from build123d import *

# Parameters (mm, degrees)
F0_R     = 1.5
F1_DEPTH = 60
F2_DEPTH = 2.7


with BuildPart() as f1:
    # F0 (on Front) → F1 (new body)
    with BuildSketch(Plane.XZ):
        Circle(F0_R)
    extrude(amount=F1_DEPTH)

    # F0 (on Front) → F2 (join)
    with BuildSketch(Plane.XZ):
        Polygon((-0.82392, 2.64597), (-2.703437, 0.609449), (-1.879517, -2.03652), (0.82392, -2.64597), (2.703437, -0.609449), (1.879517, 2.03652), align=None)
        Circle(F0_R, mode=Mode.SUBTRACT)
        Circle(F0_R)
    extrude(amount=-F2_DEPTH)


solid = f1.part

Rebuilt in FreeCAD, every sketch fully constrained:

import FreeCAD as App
import Part
import Sketcher


def add_polygon(sketch, points):
    """Adds a closed chain of lines whose ends are joined by coincident constraints."""
    first, n = sketch.GeometryCount, len(points)
    for a, b in zip(points, points[1:] + points[:1]):
        sketch.addGeometry(Part.LineSegment(App.Vector(*a, 0), App.Vector(*b, 0)), False)
    for i in range(n):
        sketch.addConstraint(Sketcher.Constraint("Coincident", first + i, 2, first + (i + 1) % n, 1))

doc = App.newDocument("Part")
params = doc.addObject("Spreadsheet::Sheet", "Params")
for row, (alias, value) in enumerate([
    ("sketch1_diameter", "3 mm"),
    ("pad1_length", "60 mm"),
    ("pad2_length", "2.7 mm"),
], start=1):
    params.set(f"A{row}", alias)
    params.set(f"B{row}", "=" + value)
    params.setAlias(f"B{row}", alias)

body = doc.addObject("PartDesign::Body", "Body")

# Sketch on XZ plane
sketch1 = body.newObject("Sketcher::SketchObject", "Sketch")
sketch1.AttachmentSupport = (doc.getObject("XZ_Plane"), [""])
sketch1.MapMode = "FlatFace"
sketch1.addGeometry(Part.Circle(App.Vector(0, 0, 0), App.Vector(0, 0, 1), 1.5), False)
sketch1.addConstraint([
    Sketcher.Constraint("Coincident", 0, 3, -1, 1),
    Sketcher.Constraint("Diameter", 0, 3.0),
])
sketch1.setExpression("Constraints[1]", "Params.sketch1_diameter")
pad1 = body.newObject("PartDesign::Pad", "Pad")
pad1.Profile = sketch1
pad1.setExpression("Length", "Params.pad1_length")

# Sketch on XZ plane
sketch2 = body.newObject("Sketcher::SketchObject", "Sketch001")
sketch2.AttachmentSupport = (doc.getObject("XZ_Plane"), [""])
sketch2.MapMode = "FlatFace"
add_polygon(sketch2, [(-0.8, 2.6), (-2.7, 0.6), (-1.9, -2), (0.8, -2.6), (2.7, -0.6), (1.9, 2)])  # lines 0-5
sketch2.addConstraint([
    Sketcher.Constraint("Symmetric", 0, 2, 3, 2, -1, 1),
    Sketcher.Constraint("Symmetric", 1, 2, 4, 2, -1, 1),
    Sketcher.Constraint("Symmetric", 2, 2, 5, 2, -1, 1),
    Sketcher.Constraint("Equal", 0, 1),
    Sketcher.Constraint("Equal", 1, 2),
    Sketcher.Constraint("Distance", 0, 2.771282),
    Sketcher.Constraint("DistanceY", -1, 1, 0, 2, 0.609449),
    Sketcher.Constraint("DistanceY", 1, 2, -1, 1, 2.03652),
    Sketcher.Constraint("DistanceX", -1, 1, 2, 2, 0.82392),
])
pad2 = body.newObject("PartDesign::Pad", "Pad001")
pad2.Profile = sketch2
pad2.setExpression("Length", "Params.pad2_length")
pad2.Reversed = True

doc.recompute()
